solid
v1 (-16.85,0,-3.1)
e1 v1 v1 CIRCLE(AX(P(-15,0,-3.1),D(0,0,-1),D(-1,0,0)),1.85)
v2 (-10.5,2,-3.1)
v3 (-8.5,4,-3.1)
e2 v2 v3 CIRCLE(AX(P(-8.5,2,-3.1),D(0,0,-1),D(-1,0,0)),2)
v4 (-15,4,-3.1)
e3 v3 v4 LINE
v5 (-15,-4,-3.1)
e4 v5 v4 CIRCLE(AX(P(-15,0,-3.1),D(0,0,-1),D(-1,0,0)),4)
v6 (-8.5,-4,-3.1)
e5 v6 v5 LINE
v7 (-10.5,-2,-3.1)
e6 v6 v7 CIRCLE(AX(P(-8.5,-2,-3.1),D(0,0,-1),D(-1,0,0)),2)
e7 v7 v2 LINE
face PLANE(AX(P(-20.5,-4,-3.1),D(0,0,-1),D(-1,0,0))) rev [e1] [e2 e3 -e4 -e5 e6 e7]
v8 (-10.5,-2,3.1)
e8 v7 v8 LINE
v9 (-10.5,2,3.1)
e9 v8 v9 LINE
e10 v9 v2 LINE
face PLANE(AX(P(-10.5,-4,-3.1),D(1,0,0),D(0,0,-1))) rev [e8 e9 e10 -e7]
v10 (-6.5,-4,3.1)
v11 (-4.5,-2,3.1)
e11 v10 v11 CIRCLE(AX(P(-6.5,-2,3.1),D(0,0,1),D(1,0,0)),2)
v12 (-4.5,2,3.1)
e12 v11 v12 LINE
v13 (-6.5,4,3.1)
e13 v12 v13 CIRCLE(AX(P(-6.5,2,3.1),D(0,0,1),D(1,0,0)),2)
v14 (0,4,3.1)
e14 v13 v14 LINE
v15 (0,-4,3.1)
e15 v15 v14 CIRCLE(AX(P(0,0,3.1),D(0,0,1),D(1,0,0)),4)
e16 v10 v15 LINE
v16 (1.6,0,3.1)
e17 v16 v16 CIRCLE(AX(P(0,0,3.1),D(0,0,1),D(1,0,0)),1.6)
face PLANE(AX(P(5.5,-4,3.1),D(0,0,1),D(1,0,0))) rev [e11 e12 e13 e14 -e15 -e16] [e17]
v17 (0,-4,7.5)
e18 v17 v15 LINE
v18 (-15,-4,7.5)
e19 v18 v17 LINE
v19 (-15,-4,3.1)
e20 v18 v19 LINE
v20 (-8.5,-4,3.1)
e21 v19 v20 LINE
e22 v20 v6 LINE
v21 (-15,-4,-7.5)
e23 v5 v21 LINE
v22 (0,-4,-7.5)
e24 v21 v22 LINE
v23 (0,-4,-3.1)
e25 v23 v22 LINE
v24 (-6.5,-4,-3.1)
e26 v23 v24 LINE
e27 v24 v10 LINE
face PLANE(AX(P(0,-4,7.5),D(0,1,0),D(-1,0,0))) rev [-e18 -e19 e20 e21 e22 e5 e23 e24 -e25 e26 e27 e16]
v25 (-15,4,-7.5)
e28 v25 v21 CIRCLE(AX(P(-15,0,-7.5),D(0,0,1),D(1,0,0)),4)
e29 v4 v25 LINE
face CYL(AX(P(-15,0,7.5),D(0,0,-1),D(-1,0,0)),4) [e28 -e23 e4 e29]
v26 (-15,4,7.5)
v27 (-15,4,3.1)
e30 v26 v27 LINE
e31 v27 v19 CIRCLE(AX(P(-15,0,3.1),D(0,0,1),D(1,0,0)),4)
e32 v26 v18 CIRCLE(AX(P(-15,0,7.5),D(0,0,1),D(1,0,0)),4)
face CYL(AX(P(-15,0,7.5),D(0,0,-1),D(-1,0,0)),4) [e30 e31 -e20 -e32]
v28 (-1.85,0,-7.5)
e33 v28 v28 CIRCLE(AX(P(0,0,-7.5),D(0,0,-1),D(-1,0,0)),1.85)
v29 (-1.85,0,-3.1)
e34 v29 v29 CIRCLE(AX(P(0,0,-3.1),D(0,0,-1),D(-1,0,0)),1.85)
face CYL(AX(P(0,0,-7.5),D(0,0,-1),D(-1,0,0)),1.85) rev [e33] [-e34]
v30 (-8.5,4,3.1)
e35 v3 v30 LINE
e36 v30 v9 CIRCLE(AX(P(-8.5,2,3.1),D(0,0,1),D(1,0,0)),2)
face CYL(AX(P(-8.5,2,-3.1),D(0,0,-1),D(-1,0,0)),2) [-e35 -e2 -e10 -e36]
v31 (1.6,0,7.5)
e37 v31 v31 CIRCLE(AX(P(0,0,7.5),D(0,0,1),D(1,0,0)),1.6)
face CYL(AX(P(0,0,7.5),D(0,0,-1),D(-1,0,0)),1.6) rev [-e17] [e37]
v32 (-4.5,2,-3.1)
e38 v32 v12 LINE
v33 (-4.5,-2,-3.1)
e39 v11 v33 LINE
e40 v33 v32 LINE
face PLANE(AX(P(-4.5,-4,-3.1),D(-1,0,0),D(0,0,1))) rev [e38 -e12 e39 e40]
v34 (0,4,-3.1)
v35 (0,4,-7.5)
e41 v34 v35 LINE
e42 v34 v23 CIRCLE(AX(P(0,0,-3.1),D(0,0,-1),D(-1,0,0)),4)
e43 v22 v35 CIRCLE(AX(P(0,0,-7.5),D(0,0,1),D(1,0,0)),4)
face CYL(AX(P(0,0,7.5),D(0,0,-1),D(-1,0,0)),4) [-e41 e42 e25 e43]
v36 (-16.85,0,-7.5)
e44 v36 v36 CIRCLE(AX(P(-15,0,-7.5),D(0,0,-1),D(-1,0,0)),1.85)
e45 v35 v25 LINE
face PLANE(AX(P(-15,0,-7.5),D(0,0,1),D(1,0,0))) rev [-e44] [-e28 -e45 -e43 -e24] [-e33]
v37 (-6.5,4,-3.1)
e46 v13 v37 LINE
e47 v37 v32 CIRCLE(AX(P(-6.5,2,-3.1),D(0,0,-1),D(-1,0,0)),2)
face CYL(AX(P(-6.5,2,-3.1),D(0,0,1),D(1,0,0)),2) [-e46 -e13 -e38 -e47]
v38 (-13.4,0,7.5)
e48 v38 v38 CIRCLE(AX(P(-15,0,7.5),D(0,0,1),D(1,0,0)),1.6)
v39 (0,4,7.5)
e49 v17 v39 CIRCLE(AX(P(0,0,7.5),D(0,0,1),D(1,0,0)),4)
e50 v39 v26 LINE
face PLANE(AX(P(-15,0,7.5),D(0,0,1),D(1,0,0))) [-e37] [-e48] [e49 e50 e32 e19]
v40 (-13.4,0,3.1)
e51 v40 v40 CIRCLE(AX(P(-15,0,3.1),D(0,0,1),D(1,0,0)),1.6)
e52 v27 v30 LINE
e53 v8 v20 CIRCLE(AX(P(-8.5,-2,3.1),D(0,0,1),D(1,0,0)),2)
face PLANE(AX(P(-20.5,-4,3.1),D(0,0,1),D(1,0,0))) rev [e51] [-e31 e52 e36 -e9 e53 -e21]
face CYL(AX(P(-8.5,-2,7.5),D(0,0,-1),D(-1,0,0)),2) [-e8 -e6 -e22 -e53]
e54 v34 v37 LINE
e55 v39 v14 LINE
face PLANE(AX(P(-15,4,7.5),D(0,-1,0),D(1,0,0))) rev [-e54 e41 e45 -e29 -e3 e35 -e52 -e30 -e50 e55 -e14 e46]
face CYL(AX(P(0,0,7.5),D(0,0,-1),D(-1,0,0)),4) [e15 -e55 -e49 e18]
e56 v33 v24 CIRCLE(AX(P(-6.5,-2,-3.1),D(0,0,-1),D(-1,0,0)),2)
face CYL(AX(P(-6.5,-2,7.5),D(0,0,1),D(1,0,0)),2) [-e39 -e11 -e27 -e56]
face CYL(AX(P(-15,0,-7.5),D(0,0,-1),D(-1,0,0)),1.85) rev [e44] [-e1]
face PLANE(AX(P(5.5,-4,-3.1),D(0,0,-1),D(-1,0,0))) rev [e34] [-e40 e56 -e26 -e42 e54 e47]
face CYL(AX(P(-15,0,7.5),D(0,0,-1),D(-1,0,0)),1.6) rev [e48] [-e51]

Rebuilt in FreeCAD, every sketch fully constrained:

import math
import FreeCAD as App
import Part
import Sketcher
from FreeCAD import Vector


def edges_at(feature, points):
    """Names of the edges that pass closest to the given points."""
    edges = feature.Shape.Edges
    near = lambda p: min(range(len(edges)), key=lambda i: edges[i].distToShape(Part.Vertex(*p))[0])
    return sorted({f"Edge{near(p) + 1}" for p in points})


def add_polygon(sketch, points):
    """Adds a closed chain of lines whose ends are joined by coincident constraints."""
    first, n = sketch.GeometryCount, len(points)
    for a, b in zip(points, points[1:] + points[:1]):
        sketch.addGeometry(Part.LineSegment(App.Vector(*a, 0), App.Vector(*b, 0)), False)
    for i in range(n):
        sketch.addConstraint(Sketcher.Constraint("Coincident", first + i, 2, first + (i + 1) % n, 1))

doc = App.newDocument("Part")
params = doc.addObject("Spreadsheet::Sheet", "Params")
for row, (alias, value) in enumerate([
    ("sketch1_radius", "4 mm"),
    ("sketch1_diameter", "3.2 mm"),
    ("sketch1_width", "15 mm"),
    ("pad1_length", "15 mm"),
    ("sketch2_width", "10 mm"),
    ("sketch2_height", "6.2 mm"),
    ("sketch3_diameter", "3.7 mm"),
    ("hole_diameter", "3.7 mm"),
    ("hole_depth", "4.4 mm"),
    ("fillet_radius", "2 mm"),
], start=1):
    params.set(f"A{row}", alias)
    params.set(f"B{row}", "=" + value)
    params.setAlias(f"B{row}", alias)

body = doc.addObject("PartDesign::Body", "Body")

sketch1 = body.newObject("Sketcher::SketchObject", "Sketch")
sketch1.AttachmentSupport = (doc.getObject("XY_Plane"), [""])
sketch1.MapMode = "FlatFace"
sketch1.addGeometry([
    Part.LineSegment(Vector(0, 4, 0), Vector(-15, 4, 0)),
    Part.ArcOfCircle(Part.Circle(Vector(-15, 0, 0), Vector(0, 0, 1), 4), math.radians(90), math.radians(270)),
    Part.LineSegment(Vector(-15, -4, 0), Vector(0, -4, 0)),
    Part.ArcOfCircle(Part.Circle(Vector(0, 0, 0), Vector(0, 0, 1), 4), math.radians(-90), math.radians(90)),
    Part.Circle(Vector(0, 0, 0), Vector(0, 0, 1), 1.6),
    Part.Circle(Vector(-15, 0, 0), Vector(0, 0, 1), 1.6),
], False)
sketch1.addConstraint([
    Sketcher.Constraint("Tangent", 0, 2, 1, 1),
    Sketcher.Constraint("Tangent", 1, 2, 2, 1),
    Sketcher.Constraint("Tangent", 2, 2, 3, 1),
    Sketcher.Constraint("Tangent", 3, 2, 0, 1),
    Sketcher.Constraint("Horizontal", 0),
    Sketcher.Constraint("Horizontal", 2),
    Sketcher.Constraint("Coincident", 3, 3, -1, 1),
    Sketcher.Constraint("Coincident", 4, 3, -1, 1),
    Sketcher.Constraint("Coincident", 5, 3, 1, 3),
    Sketcher.Constraint("Equal", 4, 5),
    Sketcher.Constraint("Radius", 1, 4.0),
    Sketcher.Constraint("Diameter", 4, 3.2),
    Sketcher.Constraint("DistanceX", 0, 2, 0, 1, 15.0),
])
sketch1.setExpression("Constraints[10]", "Params.sketch1_radius")
sketch1.setExpression("Constraints[11]", "Params.sketch1_diameter")
sketch1.setExpression("Constraints[12]", "Params.sketch1_width")
pad1 = body.newObject("PartDesign::Pad", "Pad")
pad1.Profile = sketch1
pad1.setExpression("Length", "Params.pad1_length")
pad1.Midplane = True

sketch2 = body.newObject("Sketcher::SketchObject", "Sketch001")
sketch2.AttachmentSupport = (doc.getObject("XZ_Plane"), [""])
sketch2.MapMode = "FlatFace"
add_polygon(sketch2, [(-4, -3), (-4, 3), (6, 3), (6, -3)])
add_polygon(sketch2, [(-20, -3), (-20, 3), (-10, 3), (-10, -3)])
sketch2.addConstraint([
    Sketcher.Constraint("Vertical", 0),
    Sketcher.Constraint("Horizontal", 1),
    Sketcher.Constraint("Vertical", 2),
    Sketcher.Constraint("Horizontal", 3),
    Sketcher.Constraint("Vertical", 4),
    Sketcher.Constraint("Horizontal", 5),
    Sketcher.Constraint("Vertical", 6),
    Sketcher.Constraint("Horizontal", 7),
    Sketcher.Constraint("Horizontal", 1, 2, 4, 2),
    Sketcher.Constraint("Horizontal", 3, 2, 6, 2),
    Sketcher.Constraint("Equal", 3, 5),
    Sketcher.Constraint("DistanceX", 1, 1, 1, 2, 10.0),
    Sketcher.Constraint("DistanceY", 0, 1, 0, 2, 6.2),
    Sketcher.Constraint("DistanceX", 4, 2, 0, 2, 16.0),
    Sketcher.Constraint("DistanceX", 0, 2, -1, 1, 4.5),
    Sketcher.Constraint("DistanceY", -1, 1, 0, 2, 3.1),
])
sketch2.setExpression("Constraints[19]", "Params.sketch2_width")
sketch2.setExpression("Constraints[20]", "Params.sketch2_height")
pocket1 = body.newObject("PartDesign::Pocket", "Pocket")
pocket1.Profile = sketch2
pocket1.Type = "ThroughAll"
pocket1.Midplane = True

sketch3 = body.newObject("Sketcher::SketchObject", "Sketch002")
sketch3.AttachmentSupport = (doc.getObject("XY_Plane"), [""])
sketch3.MapMode = "FlatFace"
sketch3.AttachmentOffset = App.Placement(Vector(0, 0, -7.5), App.Rotation())
sketch3.addGeometry([
    Part.Circle(Vector(0, 0, 0), Vector(0, 0, 1), 1.9),
    Part.Circle(Vector(-15, 0, 0), Vector(0, 0, 1), 1.9),
], False)
sketch3.addConstraint([
    Sketcher.Constraint("Coincident", 0, 3, -1, 1),
    Sketcher.Constraint("Equal", 0, 1),
    Sketcher.Constraint("PointOnObject", 1, 3, -1),
    Sketcher.Constraint("Diameter", 0, 3.7),
    Sketcher.Constraint("DistanceX", 1, 3, -1, 1, 15.0),
])
sketch3.setExpression("Constraints[3]", "Params.sketch3_diameter")
doc.recompute()
hole = body.newObject("PartDesign::Hole", "Hole")
hole.Profile = sketch3
hole.ThreadType = "None"
hole.setExpression("Diameter", "Params.hole_diameter")
hole.DepthType = "Dimension"
hole.setExpression("Depth", "Params.hole_depth")
hole.DrillPoint = "Flat"
hole.Reversed = True
doc.recompute()

fillet = body.newObject("PartDesign::Fillet", "Fillet")
fillet.Base = (hole, edges_at(hole, [
    (-4.5, -4, 0),
    (-4.5, 4, 0),
    (-10.5, -4, 0),
    (-10.5, 4, 0),
]))
fillet.setExpression("Radius", "Params.fillet_radius")

doc.recompute()
